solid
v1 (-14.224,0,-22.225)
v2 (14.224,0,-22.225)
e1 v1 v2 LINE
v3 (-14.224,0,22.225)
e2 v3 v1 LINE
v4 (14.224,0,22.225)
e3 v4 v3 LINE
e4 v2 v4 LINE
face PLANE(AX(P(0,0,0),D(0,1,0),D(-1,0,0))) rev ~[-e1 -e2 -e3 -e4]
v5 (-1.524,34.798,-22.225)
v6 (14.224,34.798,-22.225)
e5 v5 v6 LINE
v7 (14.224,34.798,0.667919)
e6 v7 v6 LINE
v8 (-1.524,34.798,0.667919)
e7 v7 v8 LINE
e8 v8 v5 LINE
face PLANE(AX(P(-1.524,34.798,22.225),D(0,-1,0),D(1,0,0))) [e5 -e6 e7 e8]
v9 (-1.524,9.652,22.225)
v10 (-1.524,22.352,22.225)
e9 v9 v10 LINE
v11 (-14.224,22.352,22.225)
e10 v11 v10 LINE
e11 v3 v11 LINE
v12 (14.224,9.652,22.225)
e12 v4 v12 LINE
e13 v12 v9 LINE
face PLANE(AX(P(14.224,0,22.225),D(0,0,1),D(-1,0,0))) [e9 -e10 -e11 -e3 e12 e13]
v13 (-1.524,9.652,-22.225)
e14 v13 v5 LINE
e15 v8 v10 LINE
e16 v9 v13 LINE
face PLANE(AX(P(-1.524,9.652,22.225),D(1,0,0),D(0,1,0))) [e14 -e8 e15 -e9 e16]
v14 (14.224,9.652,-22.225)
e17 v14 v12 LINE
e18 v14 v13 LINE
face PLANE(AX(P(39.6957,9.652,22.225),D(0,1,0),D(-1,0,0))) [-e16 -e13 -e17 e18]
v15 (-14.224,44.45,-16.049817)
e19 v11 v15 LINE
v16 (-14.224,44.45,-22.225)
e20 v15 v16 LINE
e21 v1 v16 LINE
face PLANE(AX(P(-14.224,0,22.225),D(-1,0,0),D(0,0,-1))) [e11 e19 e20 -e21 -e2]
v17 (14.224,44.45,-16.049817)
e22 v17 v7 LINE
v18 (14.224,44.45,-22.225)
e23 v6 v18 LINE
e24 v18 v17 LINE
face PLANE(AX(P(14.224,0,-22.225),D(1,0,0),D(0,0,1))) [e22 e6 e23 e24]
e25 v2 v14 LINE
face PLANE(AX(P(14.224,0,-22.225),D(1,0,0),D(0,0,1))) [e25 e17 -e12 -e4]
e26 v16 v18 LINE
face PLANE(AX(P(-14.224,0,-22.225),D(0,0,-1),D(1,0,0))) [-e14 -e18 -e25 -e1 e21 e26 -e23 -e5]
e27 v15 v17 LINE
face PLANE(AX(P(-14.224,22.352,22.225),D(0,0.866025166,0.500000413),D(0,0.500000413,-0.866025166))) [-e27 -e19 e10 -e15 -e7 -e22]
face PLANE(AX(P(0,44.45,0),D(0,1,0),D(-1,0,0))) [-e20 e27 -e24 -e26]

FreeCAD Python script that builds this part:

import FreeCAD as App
import Part
import Sketcher
from FreeCAD import Vector
Q = App.Units.Quantity


def add_polygon(sketch, points):
    """Adds a closed chain of lines whose ends are joined by coincident constraints."""
    first, n = sketch.GeometryCount, len(points)
    for a, b in zip(points, points[1:] + points[:1]):
        sketch.addGeometry(Part.LineSegment(App.Vector(*a, 0), App.Vector(*b, 0)), False)
    for i in range(n):
        sketch.addConstraint(Sketcher.Constraint("Coincident", first + i, 2, first + (i + 1) % n, 1))

doc = App.newDocument("Part")
body = doc.addObject("PartDesign::Body", "Body")

sketch1 = doc.addObject("Sketcher::SketchObject", "Sketch")
body.addObject(sketch1)
sketch1.AttachmentSupport = (doc.XZ_Plane, [""])
sketch1.MapMode = "FlatFace"
add_polygon(sketch1, [(-14, 22), (14, 22), (14, -22), (-14, -22)])
sketch1.addConstraint(Sketcher.Constraint("Horizontal", 0))
sketch1.addConstraint(Sketcher.Constraint("Vertical", 1))
sketch1.addConstraint(Sketcher.Constraint("Horizontal", 2))
sketch1.addConstraint(Sketcher.Constraint("Vertical", 3))
sketch1.addConstraint(Sketcher.Constraint("Symmetric", 0, 2, 2, 2, -1, 1))
sketch1.addConstraint(Sketcher.Constraint("DistanceX", 0, 1, 0, 2, Q("1.12 in")))
sketch1.addConstraint(Sketcher.Constraint("DistanceY", 1, 2, 1, 1, Q("1.75 in")))
pad1 = doc.addObject("PartDesign::Pad", "Pad")
body.addObject(pad1)
pad1.Profile = sketch1
pad1.Length = Q("1.75 in")
pad1.Reversed = True

sketch2 = doc.addObject("Sketcher::SketchObject", "Sketch001")
body.addObject(sketch2)
sketch2.AttachmentSupport = (doc.XY_Plane, [""])
sketch2.MapMode = "FlatFace"
sketch2.AttachmentOffset = App.Placement(Vector(0, 0, 0.875 * 25.4), App.Rotation())
add_polygon(sketch2, [(40, 35), (-2, 35), (-2, 10), (40, 10)])
sketch2.addConstraint(Sketcher.Constraint("Horizontal", 0))
sketch2.addConstraint(Sketcher.Constraint("Vertical", 1))
sketch2.addConstraint(Sketcher.Constraint("Horizontal", 2))
sketch2.addConstraint(Sketcher.Constraint("Vertical", 3))
sketch2.addConstraint(Sketcher.Constraint("DistanceY", -1, 1, 1, 2, Q("0.38 in")))
sketch2.addConstraint(Sketcher.Constraint("DistanceY", 1, 2, 1, 1, Q("0.99 in")))
sketch2.addConstraint(Sketcher.Constraint("DistanceX", 0, 2, -1, 1, Q("0.06 in")))
sketch2.addConstraint(Sketcher.Constraint("DistanceX", 0, 2, 0, 1, 41.2197))
pocket1 = doc.addObject("PartDesign::Pocket", "Pocket")
body.addObject(pocket1)
pocket1.Profile = sketch2
pocket1.Length = Q("1.75 in")

sketch3 = doc.addObject("Sketcher::SketchObject", "Sketch002")
body.addObject(sketch3)
sketch3.AttachmentSupport = (doc.YZ_Plane, [""])
sketch3.MapMode = "FlatFace"
sketch3.AttachmentOffset = App.Placement(Vector(0, 0, -0.56 * 25.4), App.Rotation())
add_polygon(sketch3, [(47, -21), (22, 22), (58, 32)])
sketch3.addConstraint(Sketcher.Constraint("DistanceX", -1, 1, 0, 2, Q("0.88 in")))
sketch3.addConstraint(Sketcher.Constraint("Angle", 0, Q("120 deg")))
sketch3.addConstraint(Sketcher.Constraint("Angle", 1, Q("14.9905 deg")))
sketch3.addConstraint(Sketcher.Constraint("Angle", 2, Q("-101.5806 deg")))
sketch3.addConstraint(Sketcher.Constraint("DistanceY", -1, 1, 0, 2, Q("0.875 in")))
sketch3.addConstraint(Sketcher.Constraint("Distance", 0, Q("1.9425 in")))
pocket2 = doc.addObject("PartDesign::Pocket", "Pocket001")
body.addObject(pocket2)
pocket2.Profile = sketch3
pocket2.Type = "ThroughAll"
pocket2.Reversed = True

doc.recompute()
